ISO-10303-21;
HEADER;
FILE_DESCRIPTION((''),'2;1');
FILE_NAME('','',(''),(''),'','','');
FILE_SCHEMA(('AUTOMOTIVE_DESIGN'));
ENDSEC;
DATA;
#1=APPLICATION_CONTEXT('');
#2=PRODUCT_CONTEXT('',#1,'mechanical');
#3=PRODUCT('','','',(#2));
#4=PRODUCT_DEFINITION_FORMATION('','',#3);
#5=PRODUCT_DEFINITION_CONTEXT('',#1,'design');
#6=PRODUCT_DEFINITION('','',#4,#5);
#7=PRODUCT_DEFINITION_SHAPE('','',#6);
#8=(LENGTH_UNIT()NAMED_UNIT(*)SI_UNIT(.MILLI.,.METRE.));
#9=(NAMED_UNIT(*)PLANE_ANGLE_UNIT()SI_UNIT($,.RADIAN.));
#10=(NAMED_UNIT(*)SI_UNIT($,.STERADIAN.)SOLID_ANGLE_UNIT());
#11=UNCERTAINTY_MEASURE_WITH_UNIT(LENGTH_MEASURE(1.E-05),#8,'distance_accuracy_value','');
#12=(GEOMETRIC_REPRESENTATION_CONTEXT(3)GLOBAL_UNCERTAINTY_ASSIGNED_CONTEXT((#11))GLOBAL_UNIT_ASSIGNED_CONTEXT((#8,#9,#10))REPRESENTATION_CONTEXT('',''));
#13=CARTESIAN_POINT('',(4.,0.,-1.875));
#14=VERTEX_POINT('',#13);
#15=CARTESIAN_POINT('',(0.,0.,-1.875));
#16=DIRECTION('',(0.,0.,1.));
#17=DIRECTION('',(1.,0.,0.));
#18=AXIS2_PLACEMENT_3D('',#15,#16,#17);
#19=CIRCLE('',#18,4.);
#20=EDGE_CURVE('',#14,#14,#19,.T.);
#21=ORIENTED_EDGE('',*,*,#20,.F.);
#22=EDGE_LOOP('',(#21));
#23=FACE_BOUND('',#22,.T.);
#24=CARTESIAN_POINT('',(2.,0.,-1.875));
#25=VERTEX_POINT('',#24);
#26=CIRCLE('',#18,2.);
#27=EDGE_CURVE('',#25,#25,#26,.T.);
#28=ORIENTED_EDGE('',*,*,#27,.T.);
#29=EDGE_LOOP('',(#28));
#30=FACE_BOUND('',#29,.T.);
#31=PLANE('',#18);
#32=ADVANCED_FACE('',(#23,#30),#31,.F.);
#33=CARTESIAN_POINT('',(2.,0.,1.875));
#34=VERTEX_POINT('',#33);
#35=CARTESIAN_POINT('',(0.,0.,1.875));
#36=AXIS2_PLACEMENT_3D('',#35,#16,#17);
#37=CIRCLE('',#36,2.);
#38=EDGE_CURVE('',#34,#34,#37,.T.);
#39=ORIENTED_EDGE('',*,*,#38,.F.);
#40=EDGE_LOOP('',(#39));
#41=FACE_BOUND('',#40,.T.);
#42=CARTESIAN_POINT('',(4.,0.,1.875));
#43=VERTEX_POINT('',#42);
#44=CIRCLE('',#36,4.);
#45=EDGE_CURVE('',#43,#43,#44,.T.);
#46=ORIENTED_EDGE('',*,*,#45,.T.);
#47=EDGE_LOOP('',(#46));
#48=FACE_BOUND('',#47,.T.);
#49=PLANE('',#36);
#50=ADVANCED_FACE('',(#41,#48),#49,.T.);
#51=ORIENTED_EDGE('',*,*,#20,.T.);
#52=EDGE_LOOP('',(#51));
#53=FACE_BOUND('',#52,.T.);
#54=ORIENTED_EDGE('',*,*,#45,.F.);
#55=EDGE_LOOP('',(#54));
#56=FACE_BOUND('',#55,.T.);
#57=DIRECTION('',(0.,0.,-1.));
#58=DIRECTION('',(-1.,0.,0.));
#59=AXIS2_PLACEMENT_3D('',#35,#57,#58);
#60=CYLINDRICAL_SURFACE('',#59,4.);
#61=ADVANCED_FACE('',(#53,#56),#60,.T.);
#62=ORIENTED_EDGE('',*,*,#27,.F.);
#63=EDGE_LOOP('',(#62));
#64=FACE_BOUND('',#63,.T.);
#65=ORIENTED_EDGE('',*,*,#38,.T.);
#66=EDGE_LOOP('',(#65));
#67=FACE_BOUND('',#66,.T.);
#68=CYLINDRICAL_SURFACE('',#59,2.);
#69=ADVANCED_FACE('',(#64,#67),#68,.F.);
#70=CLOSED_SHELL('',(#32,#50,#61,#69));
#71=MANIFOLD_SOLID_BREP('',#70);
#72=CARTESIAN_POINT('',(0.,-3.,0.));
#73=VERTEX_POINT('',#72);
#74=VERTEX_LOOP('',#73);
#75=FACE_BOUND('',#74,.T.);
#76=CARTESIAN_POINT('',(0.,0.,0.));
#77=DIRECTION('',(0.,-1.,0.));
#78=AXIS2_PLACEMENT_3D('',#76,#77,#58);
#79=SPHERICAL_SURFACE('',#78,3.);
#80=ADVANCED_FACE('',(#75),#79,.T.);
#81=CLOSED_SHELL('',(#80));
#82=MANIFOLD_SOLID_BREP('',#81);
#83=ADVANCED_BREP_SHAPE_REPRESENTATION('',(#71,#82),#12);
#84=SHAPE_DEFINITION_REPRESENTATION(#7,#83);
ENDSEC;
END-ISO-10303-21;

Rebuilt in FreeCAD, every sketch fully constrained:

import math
import FreeCAD as App
import Part
import Sketcher

V = App.Vector

doc = App.newDocument("Part")
body = doc.addObject("PartDesign::Body", "Body")

# Sketch on XY plane
sketch1 = doc.addObject("Sketcher::SketchObject", "Sketch")
body.addObject(sketch1)
sketch1.AttachmentSupport = (doc.XY_Plane, [""])
sketch1.MapMode = "FlatFace"
sketch1.addGeometry([
    Part.Circle(V(0, 0, 0), V(0, 0, 1), 4),
    Part.Circle(V(0, 0, 0), V(0, 0, 1), 2),
], False)
sketch1.addConstraint([
    Sketcher.Constraint("Coincident", 0, 3, -1, 1),
    Sketcher.Constraint("Coincident", 1, 3, -1, 1),
    Sketcher.Constraint("Diameter", 0, 8.0),
    Sketcher.Constraint("Diameter", 1, 4.0),
])
pad1 = doc.addObject("PartDesign::Pad", "Pad")
body.addObject(pad1)
pad1.Profile = sketch1
pad1.Length = 3.75
pad1.Midplane = True
body2 = doc.addObject("PartDesign::Body", "Body001")

# Sketch on XY plane
sketch2 = doc.addObject("Sketcher::SketchObject", "Sketch001")
body2.addObject(sketch2)
sketch2.AttachmentSupport = (doc.getObject("XY_Plane001"), [""])
sketch2.MapMode = "FlatFace"
sketch2.addGeometry([
    Part.LineSegment(V(0, -3, 0), V(0, 3, 0)),
    Part.ArcOfCircle(Part.Circle(V(0, 0, 0), V(0, 0, 1), 3), math.radians(90), math.radians(270)),
], False)
sketch2.addConstraint([
    Sketcher.Constraint("Coincident", 0, 1, 1, 2),
    Sketcher.Constraint("Coincident", 1, 1, 0, 2),
    Sketcher.Constraint("Vertical", 0),
    Sketcher.Constraint("Coincident", 1, 3, -1, 1),
    Sketcher.Constraint("PointOnObject", 0, 1, -2),
    Sketcher.Constraint("Radius", 1, 3.0),
])
revolution = doc.addObject("PartDesign::Revolution", "Revolution")
body2.addObject(revolution)
revolution.Profile = sketch2
revolution.ReferenceAxis = (sketch2, ["V_Axis"])
revolution.Angle = 360

doc.recompute()
